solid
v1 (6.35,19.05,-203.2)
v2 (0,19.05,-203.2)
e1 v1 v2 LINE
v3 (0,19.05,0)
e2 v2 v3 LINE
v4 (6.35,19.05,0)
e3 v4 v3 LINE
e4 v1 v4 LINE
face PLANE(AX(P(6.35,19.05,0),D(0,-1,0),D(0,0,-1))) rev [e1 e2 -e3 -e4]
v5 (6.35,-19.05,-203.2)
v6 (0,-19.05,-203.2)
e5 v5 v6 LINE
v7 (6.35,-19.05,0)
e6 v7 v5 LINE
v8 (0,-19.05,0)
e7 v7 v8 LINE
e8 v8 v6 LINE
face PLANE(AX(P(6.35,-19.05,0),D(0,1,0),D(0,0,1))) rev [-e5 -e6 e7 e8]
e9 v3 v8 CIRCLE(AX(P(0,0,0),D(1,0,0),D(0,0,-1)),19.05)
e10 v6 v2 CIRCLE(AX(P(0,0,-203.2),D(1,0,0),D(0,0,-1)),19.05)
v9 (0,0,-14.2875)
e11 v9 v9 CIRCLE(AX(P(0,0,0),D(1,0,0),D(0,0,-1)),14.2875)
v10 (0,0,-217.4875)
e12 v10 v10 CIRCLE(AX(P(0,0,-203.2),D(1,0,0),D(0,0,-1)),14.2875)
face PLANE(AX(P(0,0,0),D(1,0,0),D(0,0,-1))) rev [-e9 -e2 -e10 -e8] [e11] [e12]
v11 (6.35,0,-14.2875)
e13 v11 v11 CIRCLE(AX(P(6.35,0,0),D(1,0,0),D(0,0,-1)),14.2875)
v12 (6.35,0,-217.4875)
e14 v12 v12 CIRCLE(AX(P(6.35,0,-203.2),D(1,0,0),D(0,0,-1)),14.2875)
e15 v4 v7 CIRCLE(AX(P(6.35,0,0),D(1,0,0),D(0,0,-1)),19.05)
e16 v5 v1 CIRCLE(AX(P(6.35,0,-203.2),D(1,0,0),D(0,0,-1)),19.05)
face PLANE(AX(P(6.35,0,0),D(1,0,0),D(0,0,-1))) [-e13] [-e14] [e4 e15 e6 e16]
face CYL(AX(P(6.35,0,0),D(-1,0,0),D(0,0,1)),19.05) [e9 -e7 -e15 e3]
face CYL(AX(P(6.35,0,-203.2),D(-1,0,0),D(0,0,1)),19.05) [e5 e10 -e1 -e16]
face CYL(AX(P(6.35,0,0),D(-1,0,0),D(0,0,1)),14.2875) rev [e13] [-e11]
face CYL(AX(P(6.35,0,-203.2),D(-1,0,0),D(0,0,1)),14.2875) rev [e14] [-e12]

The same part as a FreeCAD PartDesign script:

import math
import FreeCAD as App
import Part
import Sketcher
from FreeCAD import Vector
Q = App.Units.Quantity

doc = App.newDocument("Part")
body = doc.addObject("PartDesign::Body", "Body")

sketch1 = body.newObject("Sketcher::SketchObject", "Sketch")
sketch1.AttachmentSupport = (doc.getObject("YZ_Plane"), [""])
sketch1.MapMode = "FlatFace"
sketch1.addGeometry(Part.LineSegment(Vector(19, -203, 0), Vector(19, 0, 0)), False)
sketch1.addGeometry(Part.ArcOfCircle(Part.Circle(Vector(0, 0, 0), Vector(0, 0, 1), 19), math.radians(0), math.radians(180)), False)
sketch1.addGeometry(Part.LineSegment(Vector(-19, 0, 0), Vector(-19, -203, 0)), False)
sketch1.addGeometry(Part.ArcOfCircle(Part.Circle(Vector(0, -203, 0), Vector(0, 0, 1), 19), math.radians(180), math.radians(360)), False)
sketch1.addGeometry(Part.Circle(Vector(0, -203, 0), Vector(0, 0, 1), 14), False)
sketch1.addGeometry(Part.Circle(Vector(0, 0, 0), Vector(0, 0, 1), 14), False)
sketch1.addConstraint(Sketcher.Constraint("Tangent", 0, 2, 1, 1))
sketch1.addConstraint(Sketcher.Constraint("Tangent", 1, 2, 2, 1))
sketch1.addConstraint(Sketcher.Constraint("Tangent", 2, 2, 3, 1))
sketch1.addConstraint(Sketcher.Constraint("Tangent", 3, 2, 0, 1))
sketch1.addConstraint(Sketcher.Constraint("Vertical", 0))
sketch1.addConstraint(Sketcher.Constraint("Vertical", 2))
sketch1.addConstraint(Sketcher.Constraint("Coincident", 1, 3, -1, 1))
sketch1.addConstraint(Sketcher.Constraint("Coincident", 5, 3, -1, 1))
sketch1.addConstraint(Sketcher.Constraint("Coincident", 4, 3, 3, 3))
sketch1.addConstraint(Sketcher.Constraint("Equal", 4, 5))
sketch1.addConstraint(Sketcher.Constraint("DistanceY", 0, 1, 0, 2, Q("8 in")))
sketch1.addConstraint(Sketcher.Constraint("Radius", 1, Q("0.75 in")))
sketch1.addConstraint(Sketcher.Constraint("Diameter", 4, Q("1.125 in")))
pad1 = body.newObject("PartDesign::Pad", "Pad")
pad1.Profile = sketch1
pad1.Length = Q("0.25 in")

doc.recompute()
